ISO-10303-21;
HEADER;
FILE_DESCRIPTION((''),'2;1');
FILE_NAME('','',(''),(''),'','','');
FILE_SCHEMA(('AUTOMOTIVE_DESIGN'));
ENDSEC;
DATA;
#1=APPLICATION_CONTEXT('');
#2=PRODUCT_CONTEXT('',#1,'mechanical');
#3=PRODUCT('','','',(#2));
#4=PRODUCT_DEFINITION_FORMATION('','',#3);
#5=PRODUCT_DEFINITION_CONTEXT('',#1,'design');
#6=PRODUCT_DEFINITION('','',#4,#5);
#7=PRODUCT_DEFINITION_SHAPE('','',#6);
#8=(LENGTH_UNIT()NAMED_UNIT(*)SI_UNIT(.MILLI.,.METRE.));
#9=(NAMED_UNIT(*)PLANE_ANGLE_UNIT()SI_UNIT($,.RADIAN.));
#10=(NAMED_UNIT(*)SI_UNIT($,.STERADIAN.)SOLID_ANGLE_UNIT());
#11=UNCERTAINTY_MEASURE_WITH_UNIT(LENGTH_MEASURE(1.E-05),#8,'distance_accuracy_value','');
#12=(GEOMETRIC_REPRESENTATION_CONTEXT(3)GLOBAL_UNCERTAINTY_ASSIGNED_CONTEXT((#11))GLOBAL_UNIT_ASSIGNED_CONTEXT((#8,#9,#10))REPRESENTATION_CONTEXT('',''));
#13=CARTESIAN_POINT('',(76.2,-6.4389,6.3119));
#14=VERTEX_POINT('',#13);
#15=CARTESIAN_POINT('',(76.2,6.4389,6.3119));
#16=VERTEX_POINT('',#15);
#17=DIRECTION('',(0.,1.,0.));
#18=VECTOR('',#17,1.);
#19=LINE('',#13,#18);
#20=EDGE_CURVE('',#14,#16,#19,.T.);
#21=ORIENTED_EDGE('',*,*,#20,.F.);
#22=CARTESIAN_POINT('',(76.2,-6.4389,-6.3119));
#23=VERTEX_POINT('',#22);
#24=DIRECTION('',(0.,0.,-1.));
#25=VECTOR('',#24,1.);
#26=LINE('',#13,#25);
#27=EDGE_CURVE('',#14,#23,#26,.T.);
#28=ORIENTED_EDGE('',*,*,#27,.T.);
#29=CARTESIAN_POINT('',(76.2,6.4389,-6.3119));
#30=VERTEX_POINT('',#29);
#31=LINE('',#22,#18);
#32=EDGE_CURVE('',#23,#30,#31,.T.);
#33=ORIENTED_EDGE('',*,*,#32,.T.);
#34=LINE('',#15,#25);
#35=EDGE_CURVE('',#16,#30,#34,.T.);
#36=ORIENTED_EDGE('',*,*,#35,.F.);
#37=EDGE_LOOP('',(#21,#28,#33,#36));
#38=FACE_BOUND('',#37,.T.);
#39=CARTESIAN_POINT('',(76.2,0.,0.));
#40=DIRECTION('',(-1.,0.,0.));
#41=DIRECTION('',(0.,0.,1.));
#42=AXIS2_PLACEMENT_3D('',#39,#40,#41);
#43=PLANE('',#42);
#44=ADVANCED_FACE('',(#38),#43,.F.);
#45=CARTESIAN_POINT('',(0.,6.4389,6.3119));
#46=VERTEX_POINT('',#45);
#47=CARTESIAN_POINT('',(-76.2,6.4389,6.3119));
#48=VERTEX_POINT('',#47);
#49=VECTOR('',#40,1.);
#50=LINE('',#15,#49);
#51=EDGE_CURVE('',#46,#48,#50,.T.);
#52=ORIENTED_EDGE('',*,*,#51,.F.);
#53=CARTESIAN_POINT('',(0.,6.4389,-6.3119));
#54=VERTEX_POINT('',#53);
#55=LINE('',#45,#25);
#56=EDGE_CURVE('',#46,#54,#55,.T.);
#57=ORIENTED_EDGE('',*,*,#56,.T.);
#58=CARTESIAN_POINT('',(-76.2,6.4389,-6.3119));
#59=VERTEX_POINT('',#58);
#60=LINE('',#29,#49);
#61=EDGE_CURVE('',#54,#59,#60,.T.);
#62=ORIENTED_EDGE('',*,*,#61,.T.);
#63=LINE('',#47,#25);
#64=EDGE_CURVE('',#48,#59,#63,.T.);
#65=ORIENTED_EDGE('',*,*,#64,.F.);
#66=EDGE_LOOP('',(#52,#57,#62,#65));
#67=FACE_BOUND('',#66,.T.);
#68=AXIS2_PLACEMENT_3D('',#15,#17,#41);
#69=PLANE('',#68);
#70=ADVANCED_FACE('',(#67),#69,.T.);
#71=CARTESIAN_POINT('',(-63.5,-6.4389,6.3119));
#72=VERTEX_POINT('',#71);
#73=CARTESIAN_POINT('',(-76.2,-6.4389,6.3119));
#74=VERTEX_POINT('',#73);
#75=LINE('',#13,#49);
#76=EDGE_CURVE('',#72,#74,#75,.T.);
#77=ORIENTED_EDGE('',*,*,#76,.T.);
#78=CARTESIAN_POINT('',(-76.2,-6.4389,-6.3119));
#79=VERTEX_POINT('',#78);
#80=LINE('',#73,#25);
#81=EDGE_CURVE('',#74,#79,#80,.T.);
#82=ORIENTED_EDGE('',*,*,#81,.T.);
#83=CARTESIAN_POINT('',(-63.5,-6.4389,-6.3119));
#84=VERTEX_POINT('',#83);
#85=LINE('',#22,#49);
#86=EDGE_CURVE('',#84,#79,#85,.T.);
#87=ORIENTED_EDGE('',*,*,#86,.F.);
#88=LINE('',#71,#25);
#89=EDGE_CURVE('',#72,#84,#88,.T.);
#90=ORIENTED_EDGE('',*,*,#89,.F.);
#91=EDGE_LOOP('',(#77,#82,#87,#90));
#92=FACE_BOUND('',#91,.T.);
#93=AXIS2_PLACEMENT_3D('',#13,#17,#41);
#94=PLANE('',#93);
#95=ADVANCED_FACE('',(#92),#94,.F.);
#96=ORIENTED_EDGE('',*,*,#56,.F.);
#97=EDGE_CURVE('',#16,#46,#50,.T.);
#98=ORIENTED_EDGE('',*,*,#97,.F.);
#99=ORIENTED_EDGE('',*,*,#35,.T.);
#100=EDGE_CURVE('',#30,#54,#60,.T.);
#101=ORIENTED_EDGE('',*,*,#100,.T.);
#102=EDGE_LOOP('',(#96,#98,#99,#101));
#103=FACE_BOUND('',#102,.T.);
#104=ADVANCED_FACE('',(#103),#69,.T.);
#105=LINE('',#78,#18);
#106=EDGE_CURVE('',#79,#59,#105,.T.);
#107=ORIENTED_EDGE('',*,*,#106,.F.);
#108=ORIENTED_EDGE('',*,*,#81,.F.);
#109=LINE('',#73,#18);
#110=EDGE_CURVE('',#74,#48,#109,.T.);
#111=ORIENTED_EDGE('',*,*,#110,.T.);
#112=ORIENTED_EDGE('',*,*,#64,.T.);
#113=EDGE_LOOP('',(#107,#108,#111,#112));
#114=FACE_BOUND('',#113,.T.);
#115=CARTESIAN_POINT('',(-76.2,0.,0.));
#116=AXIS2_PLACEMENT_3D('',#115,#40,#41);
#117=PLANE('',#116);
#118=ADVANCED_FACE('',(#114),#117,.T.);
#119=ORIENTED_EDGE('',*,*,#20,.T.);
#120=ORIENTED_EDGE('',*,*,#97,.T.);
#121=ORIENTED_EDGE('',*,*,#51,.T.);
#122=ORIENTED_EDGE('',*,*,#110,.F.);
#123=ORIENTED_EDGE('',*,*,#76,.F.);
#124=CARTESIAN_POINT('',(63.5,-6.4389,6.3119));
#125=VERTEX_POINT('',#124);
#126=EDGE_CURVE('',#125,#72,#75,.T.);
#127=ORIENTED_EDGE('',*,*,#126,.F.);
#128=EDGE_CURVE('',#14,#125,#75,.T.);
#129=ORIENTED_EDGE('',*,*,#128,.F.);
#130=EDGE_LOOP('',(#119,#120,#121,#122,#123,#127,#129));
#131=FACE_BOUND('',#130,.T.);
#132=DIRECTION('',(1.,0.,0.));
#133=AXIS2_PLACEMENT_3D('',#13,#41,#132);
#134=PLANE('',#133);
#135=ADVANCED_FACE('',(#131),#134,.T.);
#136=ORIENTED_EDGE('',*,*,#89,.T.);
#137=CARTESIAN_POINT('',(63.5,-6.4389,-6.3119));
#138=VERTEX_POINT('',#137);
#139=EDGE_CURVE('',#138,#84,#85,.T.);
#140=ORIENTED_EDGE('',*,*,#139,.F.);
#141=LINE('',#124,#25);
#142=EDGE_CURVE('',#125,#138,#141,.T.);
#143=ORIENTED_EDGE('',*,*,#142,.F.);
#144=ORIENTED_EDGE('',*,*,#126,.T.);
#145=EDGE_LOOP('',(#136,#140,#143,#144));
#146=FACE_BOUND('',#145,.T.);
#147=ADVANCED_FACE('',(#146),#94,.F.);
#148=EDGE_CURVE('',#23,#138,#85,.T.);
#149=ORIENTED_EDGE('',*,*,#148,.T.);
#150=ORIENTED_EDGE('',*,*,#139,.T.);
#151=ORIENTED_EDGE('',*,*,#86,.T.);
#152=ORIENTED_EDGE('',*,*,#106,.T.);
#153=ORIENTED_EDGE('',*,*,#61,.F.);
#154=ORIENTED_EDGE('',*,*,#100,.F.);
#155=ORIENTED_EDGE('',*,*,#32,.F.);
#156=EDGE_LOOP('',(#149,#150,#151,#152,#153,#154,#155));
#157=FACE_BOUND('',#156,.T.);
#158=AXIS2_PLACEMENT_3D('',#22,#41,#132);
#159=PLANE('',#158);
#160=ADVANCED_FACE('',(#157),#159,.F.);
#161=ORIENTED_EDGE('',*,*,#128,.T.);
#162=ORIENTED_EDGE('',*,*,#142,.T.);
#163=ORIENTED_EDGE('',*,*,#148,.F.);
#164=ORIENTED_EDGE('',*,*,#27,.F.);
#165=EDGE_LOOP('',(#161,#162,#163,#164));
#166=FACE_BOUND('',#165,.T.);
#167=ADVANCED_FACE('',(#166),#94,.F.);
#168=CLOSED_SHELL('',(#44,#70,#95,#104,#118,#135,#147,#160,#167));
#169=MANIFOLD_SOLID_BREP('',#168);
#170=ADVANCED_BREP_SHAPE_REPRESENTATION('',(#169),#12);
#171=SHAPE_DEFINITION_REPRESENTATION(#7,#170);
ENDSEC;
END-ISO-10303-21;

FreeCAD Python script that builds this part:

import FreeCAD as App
import Part
import Sketcher
Q = App.Units.Quantity

doc = App.newDocument("Part")
body = doc.addObject("PartDesign::Body", "Body")

sketch1 = body.newObject("Sketcher::SketchObject", "Sketch")
sketch1.AttachmentSupport = (doc.getObject("YZ_Plane"), [""])
sketch1.MapMode = "FlatFace"
sketch1.addGeometry([
    Part.LineSegment(App.Vector(6, 6, 0), App.Vector(-6, 6, 0)),
    Part.LineSegment(App.Vector(-6, 6, 0), App.Vector(-6, -6, 0)),
    Part.LineSegment(App.Vector(-6, -6, 0), App.Vector(6, -6, 0)),
    Part.LineSegment(App.Vector(6, -6, 0), App.Vector(6, 6, 0)),
], False)
sketch1.addConstraint([
    Sketcher.Constraint("Coincident", 0, 2, 1, 1),
    Sketcher.Constraint("Coincident", 1, 2, 2, 1),
    Sketcher.Constraint("Coincident", 2, 2, 3, 1),
    Sketcher.Constraint("Coincident", 3, 2, 0, 1),
    Sketcher.Constraint("Horizontal", 0),
    Sketcher.Constraint("Vertical", 1),
    Sketcher.Constraint("Horizontal", 2),
    Sketcher.Constraint("Vertical", 3),
    Sketcher.Constraint("Symmetric", 0, 2, 2, 2, -1, 1),
    Sketcher.Constraint("DistanceX", 0, 2, 0, 1, Q("0.507 in")),
    Sketcher.Constraint("DistanceY", 1, 2, 1, 1, Q("0.497 in")),
])
pad1 = body.newObject("PartDesign::Pad", "Pad")
pad1.Profile = sketch1
pad1.Length = Q("6 in")
pad1.Midplane = True

doc.recompute()
